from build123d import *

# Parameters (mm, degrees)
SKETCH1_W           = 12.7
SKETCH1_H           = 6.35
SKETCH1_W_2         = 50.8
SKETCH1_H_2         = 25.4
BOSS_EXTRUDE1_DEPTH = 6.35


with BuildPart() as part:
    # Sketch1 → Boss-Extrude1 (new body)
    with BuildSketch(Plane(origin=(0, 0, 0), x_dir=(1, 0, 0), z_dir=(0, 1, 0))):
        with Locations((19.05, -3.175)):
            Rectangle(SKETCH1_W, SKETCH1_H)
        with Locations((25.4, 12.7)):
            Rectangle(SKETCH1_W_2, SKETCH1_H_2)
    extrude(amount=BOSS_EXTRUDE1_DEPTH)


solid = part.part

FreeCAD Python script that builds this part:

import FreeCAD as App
import Part
import Sketcher

V = App.Vector
Q = App.Units.Quantity


def add_polygon(sketch, points):
    """Adds a closed chain of lines whose ends are joined by coincident constraints."""
    first, n = sketch.GeometryCount, len(points)
    for a, b in zip(points, points[1:] + points[:1]):
        sketch.addGeometry(Part.LineSegment(App.Vector(*a, 0), App.Vector(*b, 0)), False)
    for i in range(n):
        sketch.addConstraint(Sketcher.Constraint("Coincident", first + i, 2, first + (i + 1) % n, 1))

doc = App.newDocument("Part")
body = doc.addObject("PartDesign::Body", "Body")

sketch1 = body.newObject("Sketcher::SketchObject", "Sketch")
sketch1.AttachmentSupport = (doc.getObject("XZ_Plane"), [""])
sketch1.MapMode = "FlatFace"
add_polygon(sketch1, [(12.7, 0), (12.7, 6.35), (25.4, 6.35), (25.4, 0), (50.8, 0), (50.8, -25.4), (0, -25.4), (0, 0)])
sketch1.addConstraint(Sketcher.Constraint("Vertical", 0))
sketch1.addConstraint(Sketcher.Constraint("Horizontal", 1))
sketch1.addConstraint(Sketcher.Constraint("Vertical", 2))
sketch1.addConstraint(Sketcher.Constraint("Horizontal", 3))
sketch1.addConstraint(Sketcher.Constraint("Vertical", 4))
sketch1.addConstraint(Sketcher.Constraint("Horizontal", 5))
sketch1.addConstraint(Sketcher.Constraint("Vertical", 6))
sketch1.addConstraint(Sketcher.Constraint("Horizontal", 7))
sketch1.addConstraint(Sketcher.Constraint("Coincident", 6, 2, -1, 1))
sketch1.addConstraint(Sketcher.Constraint("PointOnObject", 2, 2, -1))
sketch1.addConstraint(Sketcher.Constraint("Equal", 1, 7))
sketch1.addConstraint(Sketcher.Constraint("Equal", 3, 4))
sketch1.addConstraint(Sketcher.Constraint("DistanceX", 3, 1, 3, 2, Q("1 in")))
sketch1.addConstraint(Sketcher.Constraint("DistanceX", 5, 2, 5, 1, Q("2 in")))
sketch1.addConstraint(Sketcher.Constraint("DistanceY", 0, 1, 0, 2, Q("0.25 in")))
pad1 = body.newObject("PartDesign::Pad", "Pad")
pad1.Profile = sketch1
pad1.Length = Q("0.25 in")
pad1.Reversed = True

doc.recompute()
